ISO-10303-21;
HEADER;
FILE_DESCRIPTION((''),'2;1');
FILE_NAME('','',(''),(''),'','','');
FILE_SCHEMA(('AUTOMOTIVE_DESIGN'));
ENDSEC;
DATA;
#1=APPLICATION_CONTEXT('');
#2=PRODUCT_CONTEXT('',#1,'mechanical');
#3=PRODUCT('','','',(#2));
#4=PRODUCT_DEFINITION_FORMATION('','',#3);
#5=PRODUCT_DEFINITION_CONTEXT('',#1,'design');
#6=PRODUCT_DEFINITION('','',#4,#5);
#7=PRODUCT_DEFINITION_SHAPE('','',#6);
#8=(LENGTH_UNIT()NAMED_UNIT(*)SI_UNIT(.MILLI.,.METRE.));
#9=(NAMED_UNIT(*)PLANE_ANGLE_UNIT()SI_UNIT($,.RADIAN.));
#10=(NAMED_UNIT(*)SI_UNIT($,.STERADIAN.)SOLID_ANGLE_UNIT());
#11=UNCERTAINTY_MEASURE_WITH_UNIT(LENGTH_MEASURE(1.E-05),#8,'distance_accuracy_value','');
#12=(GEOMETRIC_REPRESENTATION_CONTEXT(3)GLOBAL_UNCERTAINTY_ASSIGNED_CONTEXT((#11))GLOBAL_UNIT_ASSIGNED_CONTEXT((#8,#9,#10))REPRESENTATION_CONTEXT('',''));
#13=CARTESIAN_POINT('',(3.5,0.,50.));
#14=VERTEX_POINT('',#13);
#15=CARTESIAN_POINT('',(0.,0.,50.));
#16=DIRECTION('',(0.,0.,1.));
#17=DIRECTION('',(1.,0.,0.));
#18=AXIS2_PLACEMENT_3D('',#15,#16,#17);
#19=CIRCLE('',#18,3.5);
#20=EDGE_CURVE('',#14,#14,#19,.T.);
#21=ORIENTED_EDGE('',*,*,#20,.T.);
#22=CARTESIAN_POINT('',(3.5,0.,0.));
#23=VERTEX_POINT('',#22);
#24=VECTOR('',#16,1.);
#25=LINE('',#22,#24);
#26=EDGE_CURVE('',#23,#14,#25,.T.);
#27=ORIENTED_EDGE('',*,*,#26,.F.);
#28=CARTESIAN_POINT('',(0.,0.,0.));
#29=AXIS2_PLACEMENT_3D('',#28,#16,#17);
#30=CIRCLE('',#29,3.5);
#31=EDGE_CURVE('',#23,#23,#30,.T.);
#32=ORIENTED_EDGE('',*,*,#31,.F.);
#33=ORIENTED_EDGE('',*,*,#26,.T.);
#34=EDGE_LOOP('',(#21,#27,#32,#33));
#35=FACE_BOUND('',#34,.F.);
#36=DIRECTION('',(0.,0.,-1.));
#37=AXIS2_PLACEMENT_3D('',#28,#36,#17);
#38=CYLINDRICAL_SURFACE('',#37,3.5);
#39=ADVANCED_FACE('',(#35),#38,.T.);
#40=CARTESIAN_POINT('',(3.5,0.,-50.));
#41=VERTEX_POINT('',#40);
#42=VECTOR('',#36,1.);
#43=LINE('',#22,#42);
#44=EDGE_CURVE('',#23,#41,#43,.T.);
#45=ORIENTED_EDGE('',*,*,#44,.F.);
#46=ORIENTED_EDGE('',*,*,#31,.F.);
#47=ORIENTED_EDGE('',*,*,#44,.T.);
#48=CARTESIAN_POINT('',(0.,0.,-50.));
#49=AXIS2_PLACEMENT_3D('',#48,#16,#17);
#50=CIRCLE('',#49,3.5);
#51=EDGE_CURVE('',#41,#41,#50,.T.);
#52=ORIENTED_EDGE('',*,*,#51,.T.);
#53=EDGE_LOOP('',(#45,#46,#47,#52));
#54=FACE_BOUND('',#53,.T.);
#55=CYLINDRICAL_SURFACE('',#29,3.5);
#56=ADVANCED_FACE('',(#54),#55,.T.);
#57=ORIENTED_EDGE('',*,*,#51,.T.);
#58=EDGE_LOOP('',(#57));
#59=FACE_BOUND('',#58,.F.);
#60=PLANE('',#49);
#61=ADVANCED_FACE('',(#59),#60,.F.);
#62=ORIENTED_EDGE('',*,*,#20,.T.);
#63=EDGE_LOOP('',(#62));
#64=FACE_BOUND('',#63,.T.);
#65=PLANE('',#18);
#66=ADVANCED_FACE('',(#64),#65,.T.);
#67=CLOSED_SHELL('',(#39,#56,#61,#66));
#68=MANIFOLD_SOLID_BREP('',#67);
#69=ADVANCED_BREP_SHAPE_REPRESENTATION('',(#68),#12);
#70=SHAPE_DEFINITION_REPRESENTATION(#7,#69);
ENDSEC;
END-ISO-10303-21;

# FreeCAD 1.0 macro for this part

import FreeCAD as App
import Part
import Sketcher

V = App.Vector

doc = App.newDocument("Part")
params = doc.addObject("Spreadsheet::Sheet", "Params")
for row, (alias, value) in enumerate([
    ("sketch1_diameter", "7 mm"),
    ("pad1_length", "100 mm"),
], start=1):
    params.set(f"A{row}", alias)
    params.set(f"B{row}", "=" + value)
    params.setAlias(f"B{row}", alias)

body = doc.addObject("PartDesign::Body", "Body")

# Sketch on XY plane
sketch1 = body.newObject("Sketcher::SketchObject", "Sketch")
sketch1.AttachmentSupport = (doc.getObject("XY_Plane"), [""])
sketch1.MapMode = "FlatFace"
sketch1.addGeometry(Part.Circle(V(0, 0, 0), V(0, 0, 1), 3.5), False)
sketch1.addConstraint([
    Sketcher.Constraint("Coincident", 0, 3, -1, 1),
    Sketcher.Constraint("Diameter", 0, 7.0),
])
sketch1.setExpression("Constraints[1]", "Params.sketch1_diameter")
pad1 = body.newObject("PartDesign::Pad", "Pad")
pad1.Profile = sketch1
pad1.setExpression("Length", "Params.pad1_length")
pad1.Midplane = True

doc.recompute()
